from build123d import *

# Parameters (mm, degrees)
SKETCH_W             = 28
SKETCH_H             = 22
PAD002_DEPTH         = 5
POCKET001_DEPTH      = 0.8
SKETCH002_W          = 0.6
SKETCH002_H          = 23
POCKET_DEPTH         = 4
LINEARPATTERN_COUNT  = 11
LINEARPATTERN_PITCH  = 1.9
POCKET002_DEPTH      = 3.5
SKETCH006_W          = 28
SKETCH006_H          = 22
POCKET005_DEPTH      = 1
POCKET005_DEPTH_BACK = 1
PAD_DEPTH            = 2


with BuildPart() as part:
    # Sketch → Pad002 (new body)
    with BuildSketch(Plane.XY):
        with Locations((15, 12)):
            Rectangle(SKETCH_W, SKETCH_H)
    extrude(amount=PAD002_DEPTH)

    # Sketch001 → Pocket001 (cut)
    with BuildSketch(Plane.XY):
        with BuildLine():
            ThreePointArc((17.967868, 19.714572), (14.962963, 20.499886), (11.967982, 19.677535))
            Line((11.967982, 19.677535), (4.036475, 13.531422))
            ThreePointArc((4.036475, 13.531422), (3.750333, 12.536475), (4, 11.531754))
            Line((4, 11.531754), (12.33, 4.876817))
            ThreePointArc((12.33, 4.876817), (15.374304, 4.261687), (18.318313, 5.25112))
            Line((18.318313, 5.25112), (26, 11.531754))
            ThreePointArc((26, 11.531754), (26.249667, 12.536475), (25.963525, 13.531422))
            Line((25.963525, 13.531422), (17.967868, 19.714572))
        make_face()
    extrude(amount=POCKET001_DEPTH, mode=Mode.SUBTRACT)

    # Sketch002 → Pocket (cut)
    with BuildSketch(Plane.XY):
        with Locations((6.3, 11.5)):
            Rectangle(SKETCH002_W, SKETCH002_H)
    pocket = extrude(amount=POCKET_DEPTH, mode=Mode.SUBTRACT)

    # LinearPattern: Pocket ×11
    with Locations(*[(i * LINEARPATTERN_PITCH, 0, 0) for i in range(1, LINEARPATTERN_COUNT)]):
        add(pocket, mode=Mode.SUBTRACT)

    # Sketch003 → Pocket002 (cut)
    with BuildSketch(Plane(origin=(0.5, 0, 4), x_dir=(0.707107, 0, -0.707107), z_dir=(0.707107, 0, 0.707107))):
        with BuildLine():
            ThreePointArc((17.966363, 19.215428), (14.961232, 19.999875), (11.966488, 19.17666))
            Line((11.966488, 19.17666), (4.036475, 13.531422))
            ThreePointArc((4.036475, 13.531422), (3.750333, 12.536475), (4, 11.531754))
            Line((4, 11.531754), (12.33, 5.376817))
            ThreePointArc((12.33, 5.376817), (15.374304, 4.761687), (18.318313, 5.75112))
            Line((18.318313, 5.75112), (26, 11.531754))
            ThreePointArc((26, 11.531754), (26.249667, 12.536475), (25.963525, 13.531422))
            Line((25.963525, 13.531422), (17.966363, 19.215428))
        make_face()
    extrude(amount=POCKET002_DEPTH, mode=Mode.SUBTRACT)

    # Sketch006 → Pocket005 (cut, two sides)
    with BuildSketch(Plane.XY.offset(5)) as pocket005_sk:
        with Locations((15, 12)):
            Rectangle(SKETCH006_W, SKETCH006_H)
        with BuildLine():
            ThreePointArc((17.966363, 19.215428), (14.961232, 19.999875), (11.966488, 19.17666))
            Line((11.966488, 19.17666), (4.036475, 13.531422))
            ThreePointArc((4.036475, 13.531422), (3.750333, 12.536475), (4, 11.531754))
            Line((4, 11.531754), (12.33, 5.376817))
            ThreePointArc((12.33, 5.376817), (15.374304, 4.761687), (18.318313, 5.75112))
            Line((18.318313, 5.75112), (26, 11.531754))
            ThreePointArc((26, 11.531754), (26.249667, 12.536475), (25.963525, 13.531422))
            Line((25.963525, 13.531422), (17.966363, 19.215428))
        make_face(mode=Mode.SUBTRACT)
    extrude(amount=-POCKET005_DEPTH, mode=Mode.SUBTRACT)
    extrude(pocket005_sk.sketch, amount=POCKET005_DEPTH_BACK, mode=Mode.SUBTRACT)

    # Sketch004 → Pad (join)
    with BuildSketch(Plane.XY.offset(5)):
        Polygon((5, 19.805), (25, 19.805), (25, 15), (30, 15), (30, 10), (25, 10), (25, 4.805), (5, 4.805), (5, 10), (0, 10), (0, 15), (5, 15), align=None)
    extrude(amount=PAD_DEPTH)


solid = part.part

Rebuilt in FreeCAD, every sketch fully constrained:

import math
import FreeCAD as App
import Part
import Sketcher
from FreeCAD import Vector
Q = App.Units.Quantity

doc = App.newDocument("Part")
body = doc.addObject("PartDesign::Body", "Body")

# Sketch on XY plane
sketch1 = body.newObject("Sketcher::SketchObject", "Sketch")
sketch1.AttachmentSupport = (doc.getObject("XY_Plane"), [""])
sketch1.MapMode = "FlatFace"
sketch1.addGeometry([
    Part.LineSegment(Vector(1, 23, 0), Vector(1, 1, 0)),
    Part.LineSegment(Vector(1, 1, 0), Vector(29, 1, 0)),
    Part.LineSegment(Vector(29, 1, 0), Vector(29, 23, 0)),
    Part.LineSegment(Vector(29, 23, 0), Vector(1, 23, 0)),
], False)
sketch1.addConstraint([
    Sketcher.Constraint("Coincident", 0, 2, 1, 1),
    Sketcher.Constraint("Coincident", 1, 2, 2, 1),
    Sketcher.Constraint("Coincident", 2, 2, 3, 1),
    Sketcher.Constraint("Coincident", 3, 2, 0, 1),
    Sketcher.Constraint("Vertical", 0),
    Sketcher.Constraint("Horizontal", 1),
    Sketcher.Constraint("Vertical", 2),
    Sketcher.Constraint("Horizontal", 3),
    Sketcher.Constraint("DistanceX", 1, 1, 1, 2, Q("28 mm")),
    Sketcher.Constraint("DistanceY", 0, 2, 0, 1, Q("22 mm")),
    Sketcher.Constraint("DistanceX", -1, 1, 0, 2, Q("1 mm")),
    Sketcher.Constraint("DistanceY", -1, 1, 0, 2, Q("1 mm")),
])
pad1 = body.newObject("PartDesign::Pad", "Pad")
pad1.Profile = sketch1
pad1.Length = 5

# Sketch on XY plane
sketch2 = body.newObject("Sketcher::SketchObject", "Sketch001")
sketch2.AttachmentSupport = (doc.getObject("XY_Plane"), [""])
sketch2.MapMode = "FlatFace"
sketch2.addGeometry([
    Part.ArcOfCircle(Part.Circle(Vector(15, 14.5, 0), Vector(0, 0, 1), 6), math.radians(60), math.radians(120)),  # 0
    Part.LineSegment(Vector(12, 19.7, 0), Vector(4, 13.5, 0)),  # 1
    Part.ArcOfCircle(Part.Circle(Vector(5.8, 12.5, 0), Vector(0, 0, 1), 2), math.radians(149), math.radians(209)),  # 2
    Part.LineSegment(Vector(4, 11.5, 0), Vector(12.3, 4.9, 0)),  # 3
    Part.ArcOfCircle(Part.Circle(Vector(15, 10.3, 0), Vector(0, 0, 1), 6), math.radians(-116), math.radians(-56)),  # 4
    Part.LineSegment(Vector(18.3, 5.3, 0), Vector(26, 11.5, 0)),  # 5
    Part.ArcOfCircle(Part.Circle(Vector(24.2, 12.5, 0), Vector(0, 0, 1), 2), math.radians(-29), math.radians(31)),  # 6
    Part.LineSegment(Vector(26, 13.5, 0), Vector(18, 19.7, 0)),  # 7
], False)
sketch2.addConstraint([
    Sketcher.Constraint("Coincident", 0, 2, 1, 1),
    Sketcher.Constraint("Coincident", 1, 2, 2, 1),
    Sketcher.Constraint("Coincident", 2, 2, 3, 1),
    Sketcher.Constraint("Coincident", 3, 2, 4, 1),
    Sketcher.Constraint("Coincident", 4, 2, 5, 1),
    Sketcher.Constraint("Coincident", 5, 2, 6, 1),
    Sketcher.Constraint("Coincident", 6, 2, 7, 1),
    Sketcher.Constraint("Coincident", 7, 2, 0, 1),
    Sketcher.Constraint("Equal", 2, 6),
    Sketcher.Constraint("Horizontal", 2, 3, 6, 3),
    Sketcher.Constraint("Horizontal", 2, 2, 5, 2),
    Sketcher.Constraint("Horizontal", 1, 2, 6, 2),
    Sketcher.Constraint("Vertical", 0, 3, 4, 3),
    Sketcher.Constraint("Radius", 0, Q("5.999999 mm")),
    Sketcher.Constraint("Radius", 2, Q("2.000002 mm")),
    Sketcher.Constraint("Radius", 4, Q("6.000001 mm")),
    Sketcher.Constraint("DistanceX", -1, 1, 0, 3, Q("15 mm")),
    Sketcher.Constraint("DistanceX", -1, 1, 2, 2, Q("4 mm")),
    Sketcher.Constraint("DistanceX", -1, 1, 5, 2, Q("26 mm")),
    Sketcher.Constraint("DistanceY", 2, 3, 0, 3, Q("2.000002 mm")),
    Sketcher.Constraint("DistanceY", -1, 1, 0, 3, Q("14.500001 mm")),
    Sketcher.Constraint("DistanceY", -1, 1, 4, 3, Q("10.250002 mm")),
    Sketcher.Constraint("DistanceX", -1, 1, 3, 2, Q("12.33 mm")),
    Sketcher.Constraint("DistanceX", 2, 3, 4, 3, Q("9.249998 mm")),
    Sketcher.Constraint("DistanceY", 4, 2, 6, 2, Q("8.280302 mm")),
    Sketcher.Constraint("DistanceX", -1, 1, 0, 2, Q("11.967982 mm")),
    Sketcher.Constraint("DistanceY", -1, 1, 1, 2, Q("13.531422 mm")),
    Sketcher.Constraint("DistanceX", 0, 3, 7, 2, Q("2.967868 mm")),
])
pocket1 = body.newObject("PartDesign::Pocket", "Pocket")
pocket1.Profile = sketch2
pocket1.Length = 0.8
pocket1.Reversed = True

# Sketch on XY plane
sketch3 = body.newObject("Sketcher::SketchObject", "Sketch002")
sketch3.AttachmentSupport = (doc.getObject("XY_Plane"), [""])
sketch3.MapMode = "FlatFace"
sketch3.addGeometry([
    Part.LineSegment(Vector(6, 23, 0), Vector(6, 0, 0)),
    Part.LineSegment(Vector(6, 0, 0), Vector(6.6, 0, 0)),
    Part.LineSegment(Vector(6.6, 0, 0), Vector(6.6, 23, 0)),
    Part.LineSegment(Vector(6.6, 23, 0), Vector(6, 23, 0)),
], False)
sketch3.addConstraint([
    Sketcher.Constraint("Coincident", 0, 2, 1, 1),
    Sketcher.Constraint("Coincident", 1, 2, 2, 1),
    Sketcher.Constraint("Coincident", 2, 2, 3, 1),
    Sketcher.Constraint("Coincident", 3, 2, 0, 1),
    Sketcher.Constraint("Vertical", 0),
    Sketcher.Constraint("Horizontal", 1),
    Sketcher.Constraint("Vertical", 2),
    Sketcher.Constraint("Horizontal", 3),
    Sketcher.Constraint("PointOnObject", 0, 2, -1),
    Sketcher.Constraint("DistanceY", 0, 2, 0, 1, Q("23 mm")),
    Sketcher.Constraint("DistanceX", 1, 1, 1, 2, Q("0.6 mm")),
    Sketcher.Constraint("DistanceX", -1, 1, 0, 2, Q("6 mm")),
])
pocket2 = body.newObject("PartDesign::Pocket", "Pocket001")
pocket2.Profile = sketch3
pocket2.Length = 4
pocket2.Reversed = True
doc.recompute()

linearpattern = body.newObject("PartDesign::LinearPattern", "LinearPattern")
linearpattern.Originals = [pocket2]
linearpattern.Direction = (doc.getObject("X_Axis"), [""])
linearpattern.Mode = "offset"
linearpattern.Offset = 1.9
linearpattern.Occurrences = 11
body.Tip = linearpattern

# Sketch on an angled plane
sketch4 = body.newObject("Sketcher::SketchObject", "Sketch003")
sketch4.Placement = App.Placement(Vector(0.5, 0, 4), App.Rotation(Vector(0.707106781, 0, -0.707106781), Vector(0, 0.999999999, 0), Vector(0.707106781, 0, 0.707106781), "ZXY"))
sketch4.addGeometry([
    Part.ArcOfCircle(Part.Circle(Vector(15, 14, 0), Vector(0, 0, 1), 6), math.radians(60), math.radians(120)),  # 0
    Part.LineSegment(Vector(12, 19.2, 0), Vector(4, 13.5, 0)),  # 1
    Part.ArcOfCircle(Part.Circle(Vector(5.8, 12.5, 0), Vector(0, 0, 1), 2), math.radians(149), math.radians(209)),  # 2
    Part.LineSegment(Vector(4, 11.5, 0), Vector(12.3, 5.4, 0)),  # 3
    Part.ArcOfCircle(Part.Circle(Vector(15, 10.8, 0), Vector(0, 0, 1), 6), math.radians(-116), math.radians(-56)),  # 4
    Part.LineSegment(Vector(18.3, 5.8, 0), Vector(26, 11.5, 0)),  # 5
    Part.ArcOfCircle(Part.Circle(Vector(24.2, 12.5, 0), Vector(0, 0, 1), 2), math.radians(-29), math.radians(31)),  # 6
    Part.LineSegment(Vector(26, 13.5, 0), Vector(18, 19.2, 0)),  # 7
], False)
sketch4.addConstraint([
    Sketcher.Constraint("Coincident", 0, 2, 1, 1),
    Sketcher.Constraint("Coincident", 1, 2, 2, 1),
    Sketcher.Constraint("Coincident", 2, 2, 3, 1),
    Sketcher.Constraint("Coincident", 3, 2, 4, 1),
    Sketcher.Constraint("Coincident", 4, 2, 5, 1),
    Sketcher.Constraint("Coincident", 5, 2, 6, 1),
    Sketcher.Constraint("Coincident", 6, 2, 7, 1),
    Sketcher.Constraint("Coincident", 7, 2, 0, 1),
    Sketcher.Constraint("Equal", 2, 6),
    Sketcher.Constraint("Horizontal", 2, 3, 6, 3),
    Sketcher.Constraint("Horizontal", 2, 2, 5, 2),
    Sketcher.Constraint("Horizontal", 1, 2, 6, 2),
    Sketcher.Constraint("Vertical", 0, 3, 4, 3),
    Sketcher.Constraint("Radius", 0, Q("5.999999 mm")),
    Sketcher.Constraint("Radius", 2, Q("2.000002 mm")),
    Sketcher.Constraint("Radius", 4, Q("6.000001 mm")),
    Sketcher.Constraint("DistanceX", -1, 1, 0, 3, Q("15 mm")),
    Sketcher.Constraint("DistanceY", -1, 1, 0, 3, Q("14.000001 mm")),
    Sketcher.Constraint("DistanceX", -1, 1, 2, 2, Q("4 mm")),
    Sketcher.Constraint("DistanceX", -1, 1, 5, 2, Q("26 mm")),
    Sketcher.Constraint("DistanceY", -1, 1, 2, 3, Q("12.5 mm")),
    Sketcher.Constraint("DistanceY", -1, 1, 4, 3, Q("10.750002 mm")),
    Sketcher.Constraint("DistanceX", -1, 1, 3, 2, Q("12.33 mm")),
    Sketcher.Constraint("DistanceX", 2, 3, 4, 3, Q("9.249998 mm")),
    Sketcher.Constraint("DistanceY", 4, 2, 6, 2, Q("7.780302 mm")),
    Sketcher.Constraint("DistanceY", -1, 1, 0, 2, Q("19.17666 mm")),
    Sketcher.Constraint("DistanceY", -1, 1, 1, 2, Q("13.531422 mm")),
    Sketcher.Constraint("DistanceY", 6, 3, 7, 2, Q("6.715428 mm")),
])
pocket3 = body.newObject("PartDesign::Pocket", "Pocket002")
pocket3.Profile = sketch4
pocket3.Length = 3.5
pocket3.Reversed = True

# Sketch on XY plane
sketch5 = body.newObject("Sketcher::SketchObject", "Sketch004")
sketch5.AttachmentSupport = (doc.getObject("XY_Plane"), [""])
sketch5.MapMode = "FlatFace"
sketch5.AttachmentOffset = App.Placement(Vector(0, 0, 5), App.Rotation())
sketch5.addGeometry([
    Part.LineSegment(Vector(1, 23, 0), Vector(1, 1, 0)),  # 0
    Part.LineSegment(Vector(1, 1, 0), Vector(29, 1, 0)),  # 1
    Part.LineSegment(Vector(29, 1, 0), Vector(29, 23, 0)),  # 2
    Part.LineSegment(Vector(29, 23, 0), Vector(1, 23, 0)),  # 3
    Part.ArcOfCircle(Part.Circle(Vector(15, 14, 0), Vector(0, 0, 1), 6), math.radians(60), math.radians(120)),  # 4
    Part.LineSegment(Vector(18, 19.2, 0), Vector(26, 13.5, 0)),  # 5
    Part.ArcOfCircle(Part.Circle(Vector(24.2, 12.5, 0), Vector(0, 0, 1), 2), math.radians(-29), math.radians(31)),  # 6
    Part.LineSegment(Vector(26, 11.5, 0), Vector(18.3, 5.8, 0)),  # 7
    Part.ArcOfCircle(Part.Circle(Vector(15, 10.8, 0), Vector(0, 0, 1), 6), math.radians(-116), math.radians(-56)),  # 8
    Part.LineSegment(Vector(12.3, 5.4, 0), Vector(4, 11.5, 0)),  # 9
    Part.ArcOfCircle(Part.Circle(Vector(5.8, 12.5, 0), Vector(0, 0, 1), 2), math.radians(149), math.radians(209)),  # 10
    Part.LineSegment(Vector(4, 13.5, 0), Vector(12, 19.2, 0)),  # 11
], False)
sketch5.addConstraint([
    Sketcher.Constraint("Coincident", 0, 2, 1, 1),
    Sketcher.Constraint("Coincident", 1, 2, 2, 1),
    Sketcher.Constraint("Coincident", 2, 2, 3, 1),
    Sketcher.Constraint("Coincident", 3, 2, 0, 1),
    Sketcher.Constraint("Coincident", 4, 1, 5, 1),
    Sketcher.Constraint("Coincident", 5, 2, 6, 2),
    Sketcher.Constraint("Coincident", 6, 1, 7, 1),
    Sketcher.Constraint("Coincident", 7, 2, 8, 2),
    Sketcher.Constraint("Coincident", 8, 1, 9, 1),
    Sketcher.Constraint("Coincident", 9, 2, 10, 2),
    Sketcher.Constraint("Coincident", 10, 1, 11, 1),
    Sketcher.Constraint("Coincident", 11, 2, 4, 2),
    Sketcher.Constraint("Vertical", 0),
    Sketcher.Constraint("Horizontal", 1),
    Sketcher.Constraint("Vertical", 2),
    Sketcher.Constraint("Horizontal", 3),
    Sketcher.Constraint("Equal", 6, 10),
    Sketcher.Constraint("Horizontal", 6, 3, 10, 3),
    Sketcher.Constraint("Horizontal", 6, 1, 9, 2),
    Sketcher.Constraint("Horizontal", 5, 2, 10, 1),
    Sketcher.Constraint("Vertical", 4, 3, 8, 3),
    Sketcher.Constraint("Radius", 4, Q("5.999999 mm")),
    Sketcher.Constraint("Radius", 6, Q("2.000002 mm")),
    Sketcher.Constraint("Radius", 8, Q("6.000001 mm")),
    Sketcher.Constraint("DistanceX", 1, 1, 1, 2, Q("28 mm")),
    Sketcher.Constraint("DistanceY", 0, 2, 0, 1, Q("22 mm")),
    Sketcher.Constraint("DistanceX", -1, 1, 4, 3, Q("15 mm")),
    Sketcher.Constraint("DistanceY", -1, 1, 4, 3, Q("14.000001 mm")),
    Sketcher.Constraint("DistanceX", -1, 1, 0, 2, Q("1 mm")),
    Sketcher.Constraint("DistanceY", -1, 1, 0, 2, Q("1 mm")),
    Sketcher.Constraint("DistanceX", -1, 1, 6, 1, Q("26 mm")),
    Sketcher.Constraint("DistanceX", -1, 1, 9, 2, Q("4 mm")),
    Sketcher.Constraint("DistanceY", -1, 1, 6, 3, Q("12.5 mm")),
    Sketcher.Constraint("DistanceY", -1, 1, 8, 3, Q("10.750002 mm")),
    Sketcher.Constraint("DistanceX", -1, 1, 8, 1, Q("12.33 mm")),
    Sketcher.Constraint("DistanceX", 4, 3, 6, 3, Q("9.249998 mm")),
    Sketcher.Constraint("DistanceY", 7, 2, 5, 2, Q("7.780302 mm")),
    Sketcher.Constraint("DistanceY", -1, 1, 4, 1, Q("19.215428 mm")),
    Sketcher.Constraint("DistanceY", -1, 1, 5, 2, Q("13.531422 mm")),
    Sketcher.Constraint("DistanceY", -1, 1, 11, 2, Q("19.17666 mm")),
])
pocket4 = body.newObject("PartDesign::Pocket", "Pocket003")
pocket4.Profile = sketch5
pocket4.Type = "TwoLengths"
pocket4.Length = 1
pocket4.Length2 = 1

# Sketch on XY plane
sketch6 = body.newObject("Sketcher::SketchObject", "Sketch005")
sketch6.AttachmentSupport = (doc.getObject("XY_Plane"), [""])
sketch6.MapMode = "FlatFace"
sketch6.AttachmentOffset = App.Placement(Vector(0, 0, 5), App.Rotation())
sketch6.addGeometry([
    Part.LineSegment(Vector(25, 19.8, 0), Vector(5, 19.8, 0)),  # 0
    Part.LineSegment(Vector(5, 19.8, 0), Vector(5, 15, 0)),  # 1
    Part.LineSegment(Vector(5, 15, 0), Vector(0, 15, 0)),  # 2
    Part.LineSegment(Vector(0, 15, 0), Vector(0, 10, 0)),  # 3
    Part.LineSegment(Vector(0, 10, 0), Vector(5, 10, 0)),  # 4
    Part.LineSegment(Vector(5, 10, 0), Vector(5, 4.8, 0)),  # 5
    Part.LineSegment(Vector(5, 4.8, 0), Vector(25, 4.8, 0)),  # 6
    Part.LineSegment(Vector(25, 4.8, 0), Vector(25, 10, 0)),  # 7
    Part.LineSegment(Vector(25, 10, 0), Vector(30, 10, 0)),  # 8
    Part.LineSegment(Vector(30, 10, 0), Vector(30, 15, 0)),  # 9
    Part.LineSegment(Vector(30, 15, 0), Vector(25, 15, 0)),  # 10
    Part.LineSegment(Vector(25, 15, 0), Vector(25, 19.8, 0)),  # 11
], False)
sketch6.addConstraint([
    Sketcher.Constraint("Coincident", 0, 2, 1, 1),
    Sketcher.Constraint("Coincident", 1, 2, 2, 1),
    Sketcher.Constraint("Coincident", 2, 2, 3, 1),
    Sketcher.Constraint("Coincident", 3, 2, 4, 1),
    Sketcher.Constraint("Coincident", 4, 2, 5, 1),
    Sketcher.Constraint("Coincident", 5, 2, 6, 1),
    Sketcher.Constraint("Coincident", 6, 2, 7, 1),
    Sketcher.Constraint("Coincident", 7, 2, 8, 1),
    Sketcher.Constraint("Coincident", 8, 2, 9, 1),
    Sketcher.Constraint("Coincident", 9, 2, 10, 1),
    Sketcher.Constraint("Coincident", 10, 2, 11, 1),
    Sketcher.Constraint("Coincident", 11, 2, 0, 1),
    Sketcher.Constraint("Horizontal", 0),
    Sketcher.Constraint("Vertical", 1),
    Sketcher.Constraint("Horizontal", 2),
    Sketcher.Constraint("Vertical", 3),
    Sketcher.Constraint("Horizontal", 4),
    Sketcher.Constraint("Vertical", 5),
    Sketcher.Constraint("Horizontal", 6),
    Sketcher.Constraint("Vertical", 7),
    Sketcher.Constraint("Horizontal", 8),
    Sketcher.Constraint("Vertical", 9),
    Sketcher.Constraint("Horizontal", 10),
    Sketcher.Constraint("Vertical", 11),
    Sketcher.Constraint("PointOnObject", 2, 2, -2),
    Sketcher.Constraint("Horizontal", 4, 2, 7, 2),
    Sketcher.Constraint("Horizontal", 2, 2, 9, 2),
    Sketcher.Constraint("Vertical", 1, 2, 4, 2),
    Sketcher.Constraint("Vertical", 7, 2, 10, 2),
    Sketcher.Constraint("Equal", 4, 8),
    Sketcher.Constraint("Equal", 10, 3),
    Sketcher.Constraint("DistanceX", 0, 2, 0, 1, Q("20 mm")),
    Sketcher.Constraint("DistanceX", 2, 2, 2, 1, Q("5 mm")),
    Sketcher.Constraint("DistanceY", -1, 1, 1, 2, Q("15 mm")),
    Sketcher.Constraint("DistanceY", 5, 2, 0, 2, Q("15 mm")),
    Sketcher.Constraint("DistanceY", 1, 2, 1, 1, Q("4.805 mm")),
])
pad2 = body.newObject("PartDesign::Pad", "Pad001")
pad2.Profile = sketch6
pad2.Length = 2

doc.recompute()
